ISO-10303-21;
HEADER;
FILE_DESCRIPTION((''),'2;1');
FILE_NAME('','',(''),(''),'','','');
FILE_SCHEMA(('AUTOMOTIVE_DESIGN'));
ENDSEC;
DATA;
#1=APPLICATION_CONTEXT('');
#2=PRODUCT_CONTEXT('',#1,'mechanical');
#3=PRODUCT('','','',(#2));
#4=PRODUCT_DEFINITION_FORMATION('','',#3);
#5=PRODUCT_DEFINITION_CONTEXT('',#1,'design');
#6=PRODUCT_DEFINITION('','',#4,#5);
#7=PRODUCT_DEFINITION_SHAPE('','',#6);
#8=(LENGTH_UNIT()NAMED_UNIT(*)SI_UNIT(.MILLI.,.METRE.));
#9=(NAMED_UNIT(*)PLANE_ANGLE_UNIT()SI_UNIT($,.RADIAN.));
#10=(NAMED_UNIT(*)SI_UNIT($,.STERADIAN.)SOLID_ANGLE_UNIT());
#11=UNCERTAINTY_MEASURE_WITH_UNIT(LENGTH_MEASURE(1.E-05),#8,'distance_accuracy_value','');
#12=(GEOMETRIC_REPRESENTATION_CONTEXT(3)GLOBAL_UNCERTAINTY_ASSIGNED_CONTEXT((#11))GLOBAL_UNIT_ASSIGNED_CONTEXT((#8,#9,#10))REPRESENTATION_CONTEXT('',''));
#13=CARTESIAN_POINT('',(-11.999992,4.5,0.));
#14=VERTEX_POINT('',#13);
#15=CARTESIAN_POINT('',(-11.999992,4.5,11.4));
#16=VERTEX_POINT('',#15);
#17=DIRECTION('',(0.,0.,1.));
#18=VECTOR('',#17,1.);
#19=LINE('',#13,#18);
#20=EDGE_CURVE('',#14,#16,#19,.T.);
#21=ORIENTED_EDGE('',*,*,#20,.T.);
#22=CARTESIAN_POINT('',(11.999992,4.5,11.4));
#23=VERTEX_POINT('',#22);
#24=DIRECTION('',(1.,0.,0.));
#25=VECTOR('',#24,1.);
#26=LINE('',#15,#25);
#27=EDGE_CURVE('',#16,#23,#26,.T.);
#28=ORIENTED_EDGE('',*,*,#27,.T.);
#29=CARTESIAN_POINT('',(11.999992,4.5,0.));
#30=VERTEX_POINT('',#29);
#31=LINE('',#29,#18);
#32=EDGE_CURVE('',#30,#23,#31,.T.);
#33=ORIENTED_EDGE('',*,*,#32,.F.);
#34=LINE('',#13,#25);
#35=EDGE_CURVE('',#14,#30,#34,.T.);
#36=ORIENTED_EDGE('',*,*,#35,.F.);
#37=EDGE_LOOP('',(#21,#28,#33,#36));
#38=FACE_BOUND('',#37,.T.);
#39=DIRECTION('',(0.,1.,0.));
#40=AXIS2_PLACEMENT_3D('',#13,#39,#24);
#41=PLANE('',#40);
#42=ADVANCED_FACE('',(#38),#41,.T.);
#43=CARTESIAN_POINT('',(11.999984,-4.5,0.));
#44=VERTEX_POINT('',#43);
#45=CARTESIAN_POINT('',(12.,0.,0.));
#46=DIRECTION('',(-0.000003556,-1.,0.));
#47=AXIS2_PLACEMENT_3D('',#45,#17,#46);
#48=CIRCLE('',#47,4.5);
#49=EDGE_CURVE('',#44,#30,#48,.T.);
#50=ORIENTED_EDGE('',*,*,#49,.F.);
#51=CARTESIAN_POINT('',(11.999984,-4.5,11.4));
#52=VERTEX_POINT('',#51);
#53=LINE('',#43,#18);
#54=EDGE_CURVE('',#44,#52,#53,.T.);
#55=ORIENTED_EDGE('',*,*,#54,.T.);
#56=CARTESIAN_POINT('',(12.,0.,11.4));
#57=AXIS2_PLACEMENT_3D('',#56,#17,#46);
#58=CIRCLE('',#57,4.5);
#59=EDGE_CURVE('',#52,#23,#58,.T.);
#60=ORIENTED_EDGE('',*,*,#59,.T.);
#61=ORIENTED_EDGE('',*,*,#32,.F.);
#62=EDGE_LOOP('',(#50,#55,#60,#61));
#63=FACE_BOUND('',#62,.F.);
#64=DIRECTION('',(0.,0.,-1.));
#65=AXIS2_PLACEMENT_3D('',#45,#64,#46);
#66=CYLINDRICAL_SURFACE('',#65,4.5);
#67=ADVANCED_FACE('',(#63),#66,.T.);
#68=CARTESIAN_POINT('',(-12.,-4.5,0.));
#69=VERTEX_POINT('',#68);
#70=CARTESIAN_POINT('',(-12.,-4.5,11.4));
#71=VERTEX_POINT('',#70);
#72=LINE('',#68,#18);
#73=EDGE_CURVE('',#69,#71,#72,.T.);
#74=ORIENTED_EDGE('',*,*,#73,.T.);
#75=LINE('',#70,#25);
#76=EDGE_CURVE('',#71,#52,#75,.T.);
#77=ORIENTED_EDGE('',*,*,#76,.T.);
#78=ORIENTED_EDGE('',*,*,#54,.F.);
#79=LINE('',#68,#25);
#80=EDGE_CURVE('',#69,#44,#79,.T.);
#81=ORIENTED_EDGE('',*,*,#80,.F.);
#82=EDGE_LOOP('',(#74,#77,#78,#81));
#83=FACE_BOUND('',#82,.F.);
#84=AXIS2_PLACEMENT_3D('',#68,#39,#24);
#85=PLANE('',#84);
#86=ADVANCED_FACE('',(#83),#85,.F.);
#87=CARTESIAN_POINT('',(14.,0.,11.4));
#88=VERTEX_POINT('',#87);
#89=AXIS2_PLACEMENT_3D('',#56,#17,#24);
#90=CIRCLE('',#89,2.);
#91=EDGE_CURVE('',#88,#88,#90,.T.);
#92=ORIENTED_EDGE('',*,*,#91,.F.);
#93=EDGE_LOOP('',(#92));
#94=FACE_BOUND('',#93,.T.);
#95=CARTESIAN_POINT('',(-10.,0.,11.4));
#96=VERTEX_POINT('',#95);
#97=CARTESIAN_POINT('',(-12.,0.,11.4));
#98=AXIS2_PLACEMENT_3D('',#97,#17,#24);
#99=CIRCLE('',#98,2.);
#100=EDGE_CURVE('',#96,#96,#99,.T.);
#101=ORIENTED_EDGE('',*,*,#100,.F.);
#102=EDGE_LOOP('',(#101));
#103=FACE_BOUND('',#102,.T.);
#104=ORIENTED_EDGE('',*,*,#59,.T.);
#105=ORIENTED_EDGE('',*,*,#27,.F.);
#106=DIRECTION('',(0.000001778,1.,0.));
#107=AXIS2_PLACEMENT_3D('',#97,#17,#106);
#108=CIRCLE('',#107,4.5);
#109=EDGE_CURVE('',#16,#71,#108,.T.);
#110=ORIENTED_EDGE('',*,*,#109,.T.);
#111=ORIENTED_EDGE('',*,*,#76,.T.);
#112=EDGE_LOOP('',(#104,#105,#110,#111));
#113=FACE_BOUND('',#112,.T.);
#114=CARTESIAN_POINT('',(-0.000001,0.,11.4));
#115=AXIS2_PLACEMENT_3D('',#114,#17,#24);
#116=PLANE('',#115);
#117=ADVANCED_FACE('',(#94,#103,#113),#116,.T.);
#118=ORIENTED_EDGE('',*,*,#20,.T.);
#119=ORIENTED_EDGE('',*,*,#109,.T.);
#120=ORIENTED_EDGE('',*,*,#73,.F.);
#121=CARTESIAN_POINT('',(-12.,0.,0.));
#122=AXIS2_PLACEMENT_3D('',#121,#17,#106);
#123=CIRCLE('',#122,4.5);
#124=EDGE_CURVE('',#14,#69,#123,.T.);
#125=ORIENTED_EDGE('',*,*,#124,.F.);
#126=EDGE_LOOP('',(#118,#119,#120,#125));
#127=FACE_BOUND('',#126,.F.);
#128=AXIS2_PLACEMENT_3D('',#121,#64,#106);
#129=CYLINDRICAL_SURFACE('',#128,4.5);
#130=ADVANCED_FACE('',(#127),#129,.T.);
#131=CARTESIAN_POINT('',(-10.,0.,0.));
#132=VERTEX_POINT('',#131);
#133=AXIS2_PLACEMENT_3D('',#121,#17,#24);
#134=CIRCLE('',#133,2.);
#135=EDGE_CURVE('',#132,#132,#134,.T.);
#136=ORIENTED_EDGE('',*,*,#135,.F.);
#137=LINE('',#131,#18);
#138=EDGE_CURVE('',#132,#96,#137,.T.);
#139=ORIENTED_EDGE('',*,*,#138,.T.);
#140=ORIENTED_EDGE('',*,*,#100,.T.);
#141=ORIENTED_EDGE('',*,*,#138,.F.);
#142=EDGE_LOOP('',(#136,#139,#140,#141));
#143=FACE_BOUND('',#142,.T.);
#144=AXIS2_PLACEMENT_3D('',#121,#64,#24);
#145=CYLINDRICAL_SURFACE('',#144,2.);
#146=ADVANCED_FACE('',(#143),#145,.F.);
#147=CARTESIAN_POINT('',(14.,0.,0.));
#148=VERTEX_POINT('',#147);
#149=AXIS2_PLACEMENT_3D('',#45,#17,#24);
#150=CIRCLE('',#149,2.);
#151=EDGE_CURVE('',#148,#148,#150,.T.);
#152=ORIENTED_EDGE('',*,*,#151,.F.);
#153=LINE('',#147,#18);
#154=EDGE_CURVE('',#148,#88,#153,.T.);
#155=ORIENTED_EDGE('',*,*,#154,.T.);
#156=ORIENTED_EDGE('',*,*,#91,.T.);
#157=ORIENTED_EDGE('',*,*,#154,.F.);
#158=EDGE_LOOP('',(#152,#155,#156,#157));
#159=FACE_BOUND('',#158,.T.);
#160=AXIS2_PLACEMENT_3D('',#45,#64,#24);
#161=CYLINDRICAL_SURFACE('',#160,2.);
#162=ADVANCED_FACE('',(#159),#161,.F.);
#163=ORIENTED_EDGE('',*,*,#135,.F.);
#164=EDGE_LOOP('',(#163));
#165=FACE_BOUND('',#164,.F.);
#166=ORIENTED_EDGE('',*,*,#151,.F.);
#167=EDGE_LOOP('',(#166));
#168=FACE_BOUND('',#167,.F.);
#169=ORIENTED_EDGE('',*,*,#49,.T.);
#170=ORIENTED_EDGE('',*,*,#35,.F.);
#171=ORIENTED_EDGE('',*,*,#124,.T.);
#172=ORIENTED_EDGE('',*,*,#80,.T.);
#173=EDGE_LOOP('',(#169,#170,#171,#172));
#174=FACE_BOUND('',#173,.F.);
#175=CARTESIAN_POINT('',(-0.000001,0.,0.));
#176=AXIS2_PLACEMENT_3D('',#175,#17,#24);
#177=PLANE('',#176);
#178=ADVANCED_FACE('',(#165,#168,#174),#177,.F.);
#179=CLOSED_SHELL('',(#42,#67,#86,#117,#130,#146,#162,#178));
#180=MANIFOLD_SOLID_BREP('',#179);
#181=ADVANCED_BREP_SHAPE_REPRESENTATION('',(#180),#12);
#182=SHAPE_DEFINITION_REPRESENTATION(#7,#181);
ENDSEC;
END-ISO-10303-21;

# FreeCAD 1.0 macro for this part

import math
import FreeCAD as App
import Part
import Sketcher

V = App.Vector
Q = App.Units.Quantity

doc = App.newDocument("Part")
body = doc.addObject("PartDesign::Body", "Body")

# Sketch on XY plane
sketch1 = body.newObject("Sketcher::SketchObject", "Sketch")
sketch1.AttachmentSupport = (doc.getObject("XY_Plane"), [""])
sketch1.MapMode = "FlatFace"
sketch1.addGeometry(Part.ArcOfCircle(Part.Circle(V(-12, 0, 0), V(0, 0, 1), 4.5), math.radians(89.999898), math.radians(270)), False)
sketch1.addGeometry(Part.LineSegment(V(-12, -4.5, 0), V(11.999984, -4.5, 0)), False)
sketch1.addGeometry(Part.ArcOfCircle(Part.Circle(V(12, 0, 0), V(0, 0, 1), 4.5), math.radians(-90.000204), math.radians(90.000102)), False)
sketch1.addGeometry(Part.LineSegment(V(11.999992, 4.5, 0), V(-11.999992, 4.5, 0)), False)
sketch1.addGeometry(Part.Circle(V(-12, 0, 0), V(0, 0, 1), 2), False)
sketch1.addGeometry(Part.Circle(V(12, 0, 0), V(0, 0, 1), 2), False)
sketch1.addConstraint(Sketcher.Constraint("Tangent", 0, 2, 1, 1))
sketch1.addConstraint(Sketcher.Constraint("Coincident", 1, 2, 2, 1))
sketch1.addConstraint(Sketcher.Constraint("Tangent", 2, 2, 3, 1))
sketch1.addConstraint(Sketcher.Constraint("Tangent", 3, 2, 0, 1))
sketch1.addConstraint(Sketcher.Constraint("Horizontal", 1))
sketch1.addConstraint(Sketcher.Constraint("Horizontal", 3))
sketch1.addConstraint(Sketcher.Constraint("Coincident", 4, 3, 0, 3))
sketch1.addConstraint(Sketcher.Constraint("Coincident", 5, 3, 2, 3))
sketch1.addConstraint(Sketcher.Constraint("Equal", 4, 5))
sketch1.addConstraint(Sketcher.Constraint("Symmetric", 0, 3, 2, 3, -1, 1))
sketch1.addConstraint(Sketcher.Constraint("Equal", 1, 3))
sketch1.addConstraint(Sketcher.Constraint("Diameter", 4, Q("4 mm")))
sketch1.addConstraint(Sketcher.Constraint("Radius", 0, Q("4.5 mm")))
sketch1.addConstraint(Sketcher.Constraint("DistanceX", 0, 3, -1, 1, Q("12 mm")))
pad1 = body.newObject("PartDesign::Pad", "Pad")
pad1.Profile = sketch1
pad1.Length = 11.4

doc.recompute()
